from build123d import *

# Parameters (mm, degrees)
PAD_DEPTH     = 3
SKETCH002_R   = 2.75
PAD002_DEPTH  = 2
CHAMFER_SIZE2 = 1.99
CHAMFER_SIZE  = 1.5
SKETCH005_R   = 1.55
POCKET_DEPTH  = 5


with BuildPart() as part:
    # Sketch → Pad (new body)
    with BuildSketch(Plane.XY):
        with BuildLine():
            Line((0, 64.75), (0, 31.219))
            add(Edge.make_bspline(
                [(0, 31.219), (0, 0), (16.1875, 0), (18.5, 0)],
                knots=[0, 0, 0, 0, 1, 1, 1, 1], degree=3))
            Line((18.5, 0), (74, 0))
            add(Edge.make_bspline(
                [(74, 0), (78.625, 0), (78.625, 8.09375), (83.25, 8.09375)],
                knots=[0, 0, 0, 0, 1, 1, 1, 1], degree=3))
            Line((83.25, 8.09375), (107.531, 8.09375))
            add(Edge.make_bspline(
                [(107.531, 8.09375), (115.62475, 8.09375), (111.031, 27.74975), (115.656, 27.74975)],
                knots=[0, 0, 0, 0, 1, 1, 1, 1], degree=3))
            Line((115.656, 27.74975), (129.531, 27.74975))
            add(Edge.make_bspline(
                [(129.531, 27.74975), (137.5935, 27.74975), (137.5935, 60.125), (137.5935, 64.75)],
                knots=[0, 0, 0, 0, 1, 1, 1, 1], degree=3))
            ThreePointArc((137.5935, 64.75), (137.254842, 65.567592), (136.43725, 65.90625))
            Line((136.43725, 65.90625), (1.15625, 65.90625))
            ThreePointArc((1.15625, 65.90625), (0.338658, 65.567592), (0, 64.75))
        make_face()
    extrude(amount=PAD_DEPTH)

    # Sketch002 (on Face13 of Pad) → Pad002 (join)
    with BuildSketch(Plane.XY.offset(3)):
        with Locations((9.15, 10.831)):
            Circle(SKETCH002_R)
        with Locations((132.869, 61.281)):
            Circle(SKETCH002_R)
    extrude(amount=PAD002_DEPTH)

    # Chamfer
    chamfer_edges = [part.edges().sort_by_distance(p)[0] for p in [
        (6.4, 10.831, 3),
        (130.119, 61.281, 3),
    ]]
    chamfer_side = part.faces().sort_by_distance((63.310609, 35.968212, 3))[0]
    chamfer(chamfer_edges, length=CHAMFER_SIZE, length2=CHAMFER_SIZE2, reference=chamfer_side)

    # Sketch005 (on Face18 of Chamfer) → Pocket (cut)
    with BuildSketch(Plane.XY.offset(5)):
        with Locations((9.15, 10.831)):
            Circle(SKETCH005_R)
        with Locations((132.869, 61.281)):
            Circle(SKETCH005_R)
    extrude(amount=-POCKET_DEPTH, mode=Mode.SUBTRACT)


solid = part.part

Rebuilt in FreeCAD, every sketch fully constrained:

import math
import FreeCAD as App
import Part
import Sketcher
from FreeCAD import Vector
Q = App.Units.Quantity


def edges_at(feature, points):
    """Names of the edges that pass closest to the given points."""
    edges = feature.Shape.Edges
    near = lambda p: min(range(len(edges)), key=lambda i: edges[i].distToShape(Part.Vertex(*p))[0])
    return sorted({f"Edge{near(p) + 1}" for p in points})

doc = App.newDocument("Part")
body = doc.addObject("PartDesign::Body", "Body")

sketch1 = body.newObject("Sketcher::SketchObject", "Sketch")
sketch1.AttachmentSupport = (doc.getObject("XY_Plane"), [""])
sketch1.MapMode = "FlatFace"
sketch1.addGeometry([
    Part.LineSegment(Vector(0, 64.75, 0), Vector(0, 31.219, 0)),
    Part.BSplineCurve([Vector(0, 31.219, 0), Vector(0, 0, 0), Vector(16.1875, 0, 0), Vector(18.5, 0, 0)], [4, 4], [0, 1], False, 3, [1, 1, 1, 1], False),
    Part.LineSegment(Vector(18.5, 0, 0), Vector(74, 0, 0)),
    Part.BSplineCurve([Vector(74, 0, 0), Vector(78.625, 0, 0), Vector(78.625, 8.09375, 0), Vector(83.25, 8.09375, 0)], [4, 4], [0, 1], False, 3, [1, 1, 1, 1], False),
    Part.LineSegment(Vector(83.25, 8.09375, 0), Vector(107.531, 8.09375, 0)),
    Part.BSplineCurve([Vector(107.531, 8.09375, 0), Vector(115.62475, 8.09375, 0), Vector(111.031, 27.74975, 0), Vector(115.656, 27.74975, 0)], [4, 4], [0, 1], False, 3, [1, 1, 1, 1], False),
    Part.LineSegment(Vector(115.656, 27.74975, 0), Vector(129.531, 27.74975, 0)),
    Part.BSplineCurve([Vector(129.531, 27.74975, 0), Vector(137.5935, 27.74975, 0), Vector(137.5935, 60.125, 0), Vector(137.5935, 64.75, 0)], [4, 4], [0, 1], False, 3, [1, 1, 1, 1], False),
    Part.ArcOfCircle(Part.Circle(Vector(136.437249, 64.749999, 0), Vector(0, 0, 1), 1.156251), math.radians(0.000037), math.radians(89.999963)),
    Part.LineSegment(Vector(136.43725, 65.90625, 0), Vector(1.15625, 65.90625, 0)),
    Part.ArcOfCircle(Part.Circle(Vector(1.156251, 64.749999, 0), Vector(0, 0, 1), 1.156251), math.radians(90.000037), math.radians(179.999963)),
], False)
sketch1.addConstraint([
    Sketcher.Constraint("Block", 1),
    Sketcher.Constraint("Block", 3),
    Sketcher.Constraint("Block", 5),
    Sketcher.Constraint("Block", 7),
    Sketcher.Constraint("Coincident", 0, 2, 1, 1),
    Sketcher.Constraint("Coincident", 1, 2, 2, 1),
    Sketcher.Constraint("Coincident", 2, 2, 3, 1),
    Sketcher.Constraint("Coincident", 3, 2, 4, 1),
    Sketcher.Constraint("Coincident", 4, 2, 5, 1),
    Sketcher.Constraint("Coincident", 5, 2, 6, 1),
    Sketcher.Constraint("Coincident", 6, 2, 7, 1),
    Sketcher.Constraint("Coincident", 7, 2, 8, 1),
    Sketcher.Constraint("Coincident", 8, 2, 9, 1),
    Sketcher.Constraint("Coincident", 9, 2, 10, 1),
    Sketcher.Constraint("Coincident", 10, 2, 0, 1),
    Sketcher.Constraint("Vertical", 0),
    Sketcher.Constraint("Horizontal", 9),
    Sketcher.Constraint("DistanceX", 9, 2, 9, 1, Q("135.281 mm")),
    Sketcher.Constraint("DistanceY", 0, 2, 0, 1, Q("33.531 mm")),
    Sketcher.Constraint("DistanceY", -1, 1, 8, 3, Q("64.749999 mm")),
    Sketcher.Constraint("DistanceY", -1, 1, 10, 3, Q("64.749999 mm")),
    Sketcher.Constraint("Radius", 8, Q("1.156251 mm")),
    Sketcher.Constraint("DistanceX", 10, 3, 8, 2, Q("135.280999 mm")),
])
pad1 = body.newObject("PartDesign::Pad", "Pad")
pad1.Profile = sketch1
pad1.Length = 3

sketch2 = body.newObject("Sketcher::SketchObject", "Sketch001")
sketch2.AttachmentSupport = (doc.getObject("XY_Plane"), [""])
sketch2.MapMode = "FlatFace"
sketch2.AttachmentOffset = App.Placement(Vector(0, 0, 3), App.Rotation())
sketch2.addGeometry([
    Part.Circle(Vector(9.2, 10.8, 0), Vector(0, 0, 1), 2.8),
    Part.Circle(Vector(132.9, 61.3, 0), Vector(0, 0, 1), 2.8),
], False)
sketch2.addConstraint([
    Sketcher.Constraint("Equal", 0, 1),
    Sketcher.Constraint("Diameter", 0, Q("5.5 mm")),
    Sketcher.Constraint("DistanceX", -1, 1, 0, 3, Q("9.15 mm")),
    Sketcher.Constraint("DistanceY", 0, 3, 1, 3, Q("50.45 mm")),
    Sketcher.Constraint("DistanceY", -1, 1, 0, 3, Q("10.831 mm")),
    Sketcher.Constraint("DistanceX", -1, 1, 1, 3, Q("132.869 mm")),
])
pad2 = body.newObject("PartDesign::Pad", "Pad001")
pad2.Profile = sketch2
pad2.Length = 2
doc.recompute()

chamfer = body.newObject("PartDesign::Chamfer", "Chamfer")
chamfer.Base = (pad2, edges_at(pad2, [(6.4, 10.831, 3), (130.119, 61.281, 3)]))
chamfer.ChamferType = "Two distances"
chamfer.Size = 1.5
chamfer.Size2 = 1.99

sketch3 = body.newObject("Sketcher::SketchObject", "Sketch002")
sketch3.AttachmentSupport = (doc.getObject("XY_Plane"), [""])
sketch3.MapMode = "FlatFace"
sketch3.AttachmentOffset = App.Placement(Vector(0, 0, 5), App.Rotation())
sketch3.addGeometry([
    Part.Circle(Vector(9.2, 10.8, 0), Vector(0, 0, 1), 1.6),
    Part.Circle(Vector(132.9, 61.3, 0), Vector(0, 0, 1), 1.6),
], False)
sketch3.addConstraint([
    Sketcher.Constraint("Equal", 0, 1),
    Sketcher.Constraint("Diameter", 0, Q("3.1 mm")),
    Sketcher.Constraint("DistanceX", -1, 1, 0, 3, Q("9.15 mm")),
    Sketcher.Constraint("DistanceY", 0, 3, 1, 3, Q("50.45 mm")),
    Sketcher.Constraint("DistanceY", -1, 1, 0, 3, Q("10.831 mm")),
    Sketcher.Constraint("DistanceX", -1, 1, 1, 3, Q("132.869 mm")),
])
pocket1 = body.newObject("PartDesign::Pocket", "Pocket")
pocket1.Profile = sketch3
pocket1.Length = 5

doc.recompute()
